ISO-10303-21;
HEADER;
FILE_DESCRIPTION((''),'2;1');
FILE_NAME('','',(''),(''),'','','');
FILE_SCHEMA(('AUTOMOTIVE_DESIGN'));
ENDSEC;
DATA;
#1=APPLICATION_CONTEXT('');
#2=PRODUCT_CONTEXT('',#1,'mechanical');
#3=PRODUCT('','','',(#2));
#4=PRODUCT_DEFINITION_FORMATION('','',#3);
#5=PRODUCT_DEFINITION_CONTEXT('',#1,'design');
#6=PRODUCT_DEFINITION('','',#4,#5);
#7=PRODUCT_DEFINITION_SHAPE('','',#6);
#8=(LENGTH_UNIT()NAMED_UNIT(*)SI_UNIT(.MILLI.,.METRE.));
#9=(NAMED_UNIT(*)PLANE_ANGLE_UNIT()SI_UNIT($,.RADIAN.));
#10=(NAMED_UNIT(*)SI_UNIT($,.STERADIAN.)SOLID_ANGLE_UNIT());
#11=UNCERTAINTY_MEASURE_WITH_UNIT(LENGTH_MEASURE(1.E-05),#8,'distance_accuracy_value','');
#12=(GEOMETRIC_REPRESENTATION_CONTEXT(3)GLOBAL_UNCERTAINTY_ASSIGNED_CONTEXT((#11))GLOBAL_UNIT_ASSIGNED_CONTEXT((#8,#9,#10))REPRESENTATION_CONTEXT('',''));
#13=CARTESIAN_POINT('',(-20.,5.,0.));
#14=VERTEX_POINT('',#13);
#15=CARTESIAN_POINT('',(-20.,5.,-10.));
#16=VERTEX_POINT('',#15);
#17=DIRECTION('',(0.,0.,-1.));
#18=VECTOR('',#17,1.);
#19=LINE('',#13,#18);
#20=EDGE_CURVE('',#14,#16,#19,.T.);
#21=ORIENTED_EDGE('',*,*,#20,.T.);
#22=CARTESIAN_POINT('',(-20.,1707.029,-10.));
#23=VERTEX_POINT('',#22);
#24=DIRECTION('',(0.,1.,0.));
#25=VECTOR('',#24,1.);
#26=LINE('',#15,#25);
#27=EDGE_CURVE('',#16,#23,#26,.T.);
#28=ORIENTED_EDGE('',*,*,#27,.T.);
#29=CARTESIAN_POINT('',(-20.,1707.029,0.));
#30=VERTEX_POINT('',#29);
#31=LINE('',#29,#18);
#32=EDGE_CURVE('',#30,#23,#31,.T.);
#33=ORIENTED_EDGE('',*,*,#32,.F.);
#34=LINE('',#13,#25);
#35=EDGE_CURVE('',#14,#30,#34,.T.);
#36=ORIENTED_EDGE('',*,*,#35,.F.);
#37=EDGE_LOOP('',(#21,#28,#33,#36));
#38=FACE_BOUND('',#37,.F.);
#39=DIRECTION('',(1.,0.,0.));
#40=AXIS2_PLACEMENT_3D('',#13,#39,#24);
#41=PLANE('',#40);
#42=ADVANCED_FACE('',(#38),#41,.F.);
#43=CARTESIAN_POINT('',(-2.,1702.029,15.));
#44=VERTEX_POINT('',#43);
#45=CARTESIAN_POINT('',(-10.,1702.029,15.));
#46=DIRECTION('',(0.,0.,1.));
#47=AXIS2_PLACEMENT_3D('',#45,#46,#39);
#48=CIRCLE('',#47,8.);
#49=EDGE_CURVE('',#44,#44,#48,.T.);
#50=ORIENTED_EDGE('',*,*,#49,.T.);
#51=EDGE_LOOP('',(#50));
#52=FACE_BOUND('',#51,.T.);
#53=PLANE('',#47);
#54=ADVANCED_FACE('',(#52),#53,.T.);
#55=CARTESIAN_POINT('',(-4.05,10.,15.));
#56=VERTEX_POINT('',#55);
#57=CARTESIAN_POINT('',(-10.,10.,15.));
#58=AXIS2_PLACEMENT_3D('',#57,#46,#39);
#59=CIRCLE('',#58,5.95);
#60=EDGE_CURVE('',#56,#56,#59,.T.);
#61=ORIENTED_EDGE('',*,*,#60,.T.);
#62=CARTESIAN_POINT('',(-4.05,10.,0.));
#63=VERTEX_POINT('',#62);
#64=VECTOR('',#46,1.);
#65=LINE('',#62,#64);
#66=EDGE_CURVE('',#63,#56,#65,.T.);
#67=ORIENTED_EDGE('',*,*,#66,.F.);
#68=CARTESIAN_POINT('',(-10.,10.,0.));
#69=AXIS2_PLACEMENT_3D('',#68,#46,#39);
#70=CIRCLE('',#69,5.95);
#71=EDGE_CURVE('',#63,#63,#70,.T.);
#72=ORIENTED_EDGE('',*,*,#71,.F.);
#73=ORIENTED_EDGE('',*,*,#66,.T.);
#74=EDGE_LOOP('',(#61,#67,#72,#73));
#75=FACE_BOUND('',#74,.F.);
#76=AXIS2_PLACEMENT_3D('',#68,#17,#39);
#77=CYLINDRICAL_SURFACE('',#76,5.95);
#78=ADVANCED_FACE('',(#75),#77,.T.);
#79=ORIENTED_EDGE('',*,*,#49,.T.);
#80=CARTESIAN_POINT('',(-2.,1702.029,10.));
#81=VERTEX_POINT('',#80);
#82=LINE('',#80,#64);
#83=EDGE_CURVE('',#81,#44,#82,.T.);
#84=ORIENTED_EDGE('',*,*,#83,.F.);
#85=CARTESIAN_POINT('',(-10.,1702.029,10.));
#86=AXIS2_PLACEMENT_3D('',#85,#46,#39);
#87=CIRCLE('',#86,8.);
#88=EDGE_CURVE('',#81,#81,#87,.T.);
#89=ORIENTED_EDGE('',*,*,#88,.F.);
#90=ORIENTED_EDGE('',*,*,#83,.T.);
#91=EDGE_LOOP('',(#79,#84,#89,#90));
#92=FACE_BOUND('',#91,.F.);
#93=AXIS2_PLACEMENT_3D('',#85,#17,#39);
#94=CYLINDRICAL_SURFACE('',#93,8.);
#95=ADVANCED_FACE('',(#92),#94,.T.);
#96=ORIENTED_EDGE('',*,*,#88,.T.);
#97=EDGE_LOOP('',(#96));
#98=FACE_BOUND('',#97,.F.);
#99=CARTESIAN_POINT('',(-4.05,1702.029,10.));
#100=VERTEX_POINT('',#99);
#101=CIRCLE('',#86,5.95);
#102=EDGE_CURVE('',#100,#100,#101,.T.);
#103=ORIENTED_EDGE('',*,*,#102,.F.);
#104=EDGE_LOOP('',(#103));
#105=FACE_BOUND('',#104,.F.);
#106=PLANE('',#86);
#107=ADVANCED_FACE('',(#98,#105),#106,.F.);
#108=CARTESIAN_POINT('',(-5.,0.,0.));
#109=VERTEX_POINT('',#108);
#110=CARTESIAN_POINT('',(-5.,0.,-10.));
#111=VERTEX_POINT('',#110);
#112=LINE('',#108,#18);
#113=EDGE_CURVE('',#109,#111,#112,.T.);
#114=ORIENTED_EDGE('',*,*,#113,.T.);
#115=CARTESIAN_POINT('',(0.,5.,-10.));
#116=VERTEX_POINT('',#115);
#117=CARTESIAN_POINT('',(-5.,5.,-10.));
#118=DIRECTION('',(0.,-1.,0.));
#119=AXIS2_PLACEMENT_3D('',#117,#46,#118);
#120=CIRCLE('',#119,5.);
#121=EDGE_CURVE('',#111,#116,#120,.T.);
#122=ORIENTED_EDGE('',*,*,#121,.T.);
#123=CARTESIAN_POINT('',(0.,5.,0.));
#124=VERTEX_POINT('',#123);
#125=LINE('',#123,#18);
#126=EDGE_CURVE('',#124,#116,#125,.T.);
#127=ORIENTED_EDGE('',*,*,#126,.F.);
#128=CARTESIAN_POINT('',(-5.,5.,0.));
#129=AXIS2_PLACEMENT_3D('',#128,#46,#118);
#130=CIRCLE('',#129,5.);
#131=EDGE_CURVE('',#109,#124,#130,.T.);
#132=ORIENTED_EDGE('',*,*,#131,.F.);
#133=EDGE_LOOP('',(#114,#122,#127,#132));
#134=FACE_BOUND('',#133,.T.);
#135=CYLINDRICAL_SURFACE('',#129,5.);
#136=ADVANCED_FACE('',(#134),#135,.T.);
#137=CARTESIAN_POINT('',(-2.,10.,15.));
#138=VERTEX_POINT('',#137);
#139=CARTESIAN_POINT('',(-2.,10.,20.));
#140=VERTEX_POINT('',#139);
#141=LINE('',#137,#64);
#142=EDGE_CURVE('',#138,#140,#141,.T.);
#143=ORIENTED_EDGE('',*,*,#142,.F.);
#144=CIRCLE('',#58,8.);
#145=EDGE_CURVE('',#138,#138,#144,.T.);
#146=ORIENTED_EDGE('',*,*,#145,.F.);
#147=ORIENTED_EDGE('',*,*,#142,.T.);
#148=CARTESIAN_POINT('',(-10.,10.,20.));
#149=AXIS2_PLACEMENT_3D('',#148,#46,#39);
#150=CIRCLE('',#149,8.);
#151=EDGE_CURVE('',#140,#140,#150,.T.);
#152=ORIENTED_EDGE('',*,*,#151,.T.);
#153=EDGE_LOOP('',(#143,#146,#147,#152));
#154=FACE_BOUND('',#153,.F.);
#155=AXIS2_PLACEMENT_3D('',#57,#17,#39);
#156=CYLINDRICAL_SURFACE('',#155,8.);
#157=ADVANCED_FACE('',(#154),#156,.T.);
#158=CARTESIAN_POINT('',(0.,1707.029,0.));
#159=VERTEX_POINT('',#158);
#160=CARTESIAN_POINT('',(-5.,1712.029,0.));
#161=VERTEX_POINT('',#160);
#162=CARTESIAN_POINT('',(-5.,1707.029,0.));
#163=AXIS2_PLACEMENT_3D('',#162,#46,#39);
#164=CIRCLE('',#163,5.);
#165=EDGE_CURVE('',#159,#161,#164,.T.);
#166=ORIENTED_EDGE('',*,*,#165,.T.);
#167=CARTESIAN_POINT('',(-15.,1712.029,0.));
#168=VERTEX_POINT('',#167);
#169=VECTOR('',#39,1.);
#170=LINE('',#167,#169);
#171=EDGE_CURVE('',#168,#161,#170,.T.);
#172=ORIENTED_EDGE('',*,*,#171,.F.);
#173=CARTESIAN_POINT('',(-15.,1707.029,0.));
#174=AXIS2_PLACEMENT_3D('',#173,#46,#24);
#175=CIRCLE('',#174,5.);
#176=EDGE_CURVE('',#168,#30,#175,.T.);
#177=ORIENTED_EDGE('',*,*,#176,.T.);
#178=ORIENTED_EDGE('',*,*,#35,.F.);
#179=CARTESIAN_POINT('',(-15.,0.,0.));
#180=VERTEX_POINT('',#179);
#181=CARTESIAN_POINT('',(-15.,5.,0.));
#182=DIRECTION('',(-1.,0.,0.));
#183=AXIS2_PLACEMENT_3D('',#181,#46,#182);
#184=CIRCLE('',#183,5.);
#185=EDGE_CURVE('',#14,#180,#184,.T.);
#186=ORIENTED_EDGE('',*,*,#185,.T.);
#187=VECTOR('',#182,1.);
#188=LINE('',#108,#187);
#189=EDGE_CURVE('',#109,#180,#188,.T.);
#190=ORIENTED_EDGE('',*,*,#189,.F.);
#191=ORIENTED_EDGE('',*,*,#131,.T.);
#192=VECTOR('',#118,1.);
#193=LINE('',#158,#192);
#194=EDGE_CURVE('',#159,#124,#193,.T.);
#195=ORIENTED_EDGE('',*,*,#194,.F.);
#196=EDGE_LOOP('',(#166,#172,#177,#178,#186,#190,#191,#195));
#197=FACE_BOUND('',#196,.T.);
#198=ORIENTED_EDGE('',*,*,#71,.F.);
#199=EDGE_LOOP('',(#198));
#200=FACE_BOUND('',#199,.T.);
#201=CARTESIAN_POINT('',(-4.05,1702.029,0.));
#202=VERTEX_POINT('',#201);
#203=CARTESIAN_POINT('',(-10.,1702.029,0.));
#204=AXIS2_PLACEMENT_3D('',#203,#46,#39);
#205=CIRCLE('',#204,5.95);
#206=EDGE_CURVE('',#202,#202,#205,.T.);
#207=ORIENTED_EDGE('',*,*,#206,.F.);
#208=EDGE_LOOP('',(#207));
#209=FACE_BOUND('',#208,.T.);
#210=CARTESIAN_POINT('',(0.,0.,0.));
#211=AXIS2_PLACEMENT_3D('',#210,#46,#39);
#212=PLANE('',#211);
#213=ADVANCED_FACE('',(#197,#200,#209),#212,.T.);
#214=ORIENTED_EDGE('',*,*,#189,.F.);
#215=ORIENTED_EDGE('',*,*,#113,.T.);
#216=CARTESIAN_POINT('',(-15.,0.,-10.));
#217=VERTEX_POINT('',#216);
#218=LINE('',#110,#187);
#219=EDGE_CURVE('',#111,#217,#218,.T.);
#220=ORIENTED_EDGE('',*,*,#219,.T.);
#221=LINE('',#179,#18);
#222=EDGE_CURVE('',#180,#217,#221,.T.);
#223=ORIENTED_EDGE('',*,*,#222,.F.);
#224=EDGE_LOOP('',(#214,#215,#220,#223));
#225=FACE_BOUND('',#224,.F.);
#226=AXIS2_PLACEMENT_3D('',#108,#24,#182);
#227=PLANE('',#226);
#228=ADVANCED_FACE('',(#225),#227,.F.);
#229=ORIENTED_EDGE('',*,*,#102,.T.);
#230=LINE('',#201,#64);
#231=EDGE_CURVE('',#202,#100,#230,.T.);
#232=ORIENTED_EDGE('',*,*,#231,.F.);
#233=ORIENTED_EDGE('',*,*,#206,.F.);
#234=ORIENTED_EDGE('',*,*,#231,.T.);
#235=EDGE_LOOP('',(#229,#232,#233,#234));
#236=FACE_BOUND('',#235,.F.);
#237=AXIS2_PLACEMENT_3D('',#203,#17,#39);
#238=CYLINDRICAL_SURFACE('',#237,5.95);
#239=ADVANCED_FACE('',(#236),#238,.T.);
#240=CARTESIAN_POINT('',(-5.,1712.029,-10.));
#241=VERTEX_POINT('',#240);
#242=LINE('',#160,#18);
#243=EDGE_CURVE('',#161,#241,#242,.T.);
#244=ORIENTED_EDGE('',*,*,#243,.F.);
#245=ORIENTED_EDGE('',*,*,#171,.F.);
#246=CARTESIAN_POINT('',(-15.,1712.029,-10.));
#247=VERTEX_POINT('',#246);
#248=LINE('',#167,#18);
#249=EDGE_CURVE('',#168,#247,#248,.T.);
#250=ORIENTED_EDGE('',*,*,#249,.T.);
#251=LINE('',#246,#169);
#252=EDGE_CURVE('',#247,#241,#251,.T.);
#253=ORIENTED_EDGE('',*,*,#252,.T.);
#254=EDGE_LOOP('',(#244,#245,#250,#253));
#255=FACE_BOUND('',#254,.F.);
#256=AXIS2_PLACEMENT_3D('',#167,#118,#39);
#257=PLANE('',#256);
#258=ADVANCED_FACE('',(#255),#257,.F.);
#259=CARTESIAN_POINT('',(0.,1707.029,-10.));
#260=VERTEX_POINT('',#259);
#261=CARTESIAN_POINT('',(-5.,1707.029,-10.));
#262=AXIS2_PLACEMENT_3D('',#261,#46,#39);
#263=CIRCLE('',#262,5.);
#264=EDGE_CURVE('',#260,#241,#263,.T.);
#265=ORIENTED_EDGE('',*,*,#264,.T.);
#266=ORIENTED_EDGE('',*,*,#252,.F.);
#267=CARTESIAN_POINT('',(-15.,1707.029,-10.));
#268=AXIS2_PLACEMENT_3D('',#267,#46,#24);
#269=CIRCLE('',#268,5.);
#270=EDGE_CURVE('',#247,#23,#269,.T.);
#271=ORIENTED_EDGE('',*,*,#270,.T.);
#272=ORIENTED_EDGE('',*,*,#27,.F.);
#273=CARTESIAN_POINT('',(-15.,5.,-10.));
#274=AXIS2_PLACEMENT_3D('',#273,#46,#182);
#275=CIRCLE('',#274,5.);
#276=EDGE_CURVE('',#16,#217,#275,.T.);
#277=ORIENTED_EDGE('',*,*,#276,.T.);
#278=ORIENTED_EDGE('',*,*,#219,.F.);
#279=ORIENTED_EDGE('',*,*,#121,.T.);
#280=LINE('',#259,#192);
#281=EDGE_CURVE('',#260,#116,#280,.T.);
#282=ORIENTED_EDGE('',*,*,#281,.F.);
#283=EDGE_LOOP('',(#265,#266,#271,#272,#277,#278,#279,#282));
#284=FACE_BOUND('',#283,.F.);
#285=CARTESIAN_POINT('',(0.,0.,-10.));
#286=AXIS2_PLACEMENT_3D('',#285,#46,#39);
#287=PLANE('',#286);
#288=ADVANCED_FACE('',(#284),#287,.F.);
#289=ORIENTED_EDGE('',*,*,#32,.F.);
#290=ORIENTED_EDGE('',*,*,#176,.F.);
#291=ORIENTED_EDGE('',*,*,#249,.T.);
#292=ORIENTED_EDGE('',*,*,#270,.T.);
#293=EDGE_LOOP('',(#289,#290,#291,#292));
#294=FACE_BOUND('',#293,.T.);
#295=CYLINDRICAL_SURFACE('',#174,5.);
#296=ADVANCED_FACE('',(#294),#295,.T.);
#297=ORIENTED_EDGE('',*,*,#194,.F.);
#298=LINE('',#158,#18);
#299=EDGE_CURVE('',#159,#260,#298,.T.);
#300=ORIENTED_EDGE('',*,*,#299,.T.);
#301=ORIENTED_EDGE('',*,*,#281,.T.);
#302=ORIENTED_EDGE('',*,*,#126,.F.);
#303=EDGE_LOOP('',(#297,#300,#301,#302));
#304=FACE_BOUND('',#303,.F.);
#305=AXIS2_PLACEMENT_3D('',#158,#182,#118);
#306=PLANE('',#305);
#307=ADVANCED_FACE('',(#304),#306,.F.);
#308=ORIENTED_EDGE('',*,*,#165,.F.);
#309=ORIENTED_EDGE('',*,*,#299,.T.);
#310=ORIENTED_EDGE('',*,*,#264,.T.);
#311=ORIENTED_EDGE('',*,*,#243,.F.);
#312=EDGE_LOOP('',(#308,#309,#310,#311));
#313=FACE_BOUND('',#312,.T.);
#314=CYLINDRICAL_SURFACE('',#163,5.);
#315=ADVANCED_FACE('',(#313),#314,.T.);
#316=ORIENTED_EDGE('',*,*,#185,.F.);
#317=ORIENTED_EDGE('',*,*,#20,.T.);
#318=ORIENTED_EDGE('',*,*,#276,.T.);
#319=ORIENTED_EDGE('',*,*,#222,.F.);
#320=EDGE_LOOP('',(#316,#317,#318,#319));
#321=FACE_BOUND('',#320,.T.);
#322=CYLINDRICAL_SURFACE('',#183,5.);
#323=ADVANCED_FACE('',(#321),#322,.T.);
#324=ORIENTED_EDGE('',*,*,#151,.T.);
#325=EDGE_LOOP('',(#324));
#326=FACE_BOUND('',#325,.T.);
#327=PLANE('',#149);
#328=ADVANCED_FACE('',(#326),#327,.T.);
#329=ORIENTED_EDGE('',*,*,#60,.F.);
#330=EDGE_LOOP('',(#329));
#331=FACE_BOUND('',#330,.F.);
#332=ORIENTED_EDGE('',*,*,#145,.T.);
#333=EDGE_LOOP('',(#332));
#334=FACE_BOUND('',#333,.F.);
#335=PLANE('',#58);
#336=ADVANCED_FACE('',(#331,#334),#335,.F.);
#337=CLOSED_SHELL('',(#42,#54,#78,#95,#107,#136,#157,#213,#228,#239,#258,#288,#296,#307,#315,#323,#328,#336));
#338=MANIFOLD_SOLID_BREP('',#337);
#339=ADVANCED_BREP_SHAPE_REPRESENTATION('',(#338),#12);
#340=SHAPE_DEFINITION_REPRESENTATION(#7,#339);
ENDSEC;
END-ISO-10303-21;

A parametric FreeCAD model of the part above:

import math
import FreeCAD as App
import Part
import Sketcher

V = App.Vector

doc = App.newDocument("Part")
body = doc.addObject("PartDesign::Body", "Body")

# Sketch on XY plane
sketch1 = doc.addObject("Sketcher::SketchObject", "Sketch")
body.addObject(sketch1)
sketch1.AttachmentSupport = (doc.XY_Plane, [""])
sketch1.MapMode = "FlatFace"
sketch1.addGeometry(Part.LineSegment(V(-5, 1712, 0), V(-15, 1712, 0)), False)
sketch1.addGeometry(Part.ArcOfCircle(Part.Circle(V(-15, 1707, 0), V(0, 0, 1), 5), math.radians(90), math.radians(180)), False)
sketch1.addGeometry(Part.LineSegment(V(-20, 1707, 0), V(-20, 5, 0)), False)
sketch1.addGeometry(Part.ArcOfCircle(Part.Circle(V(-15, 5, 0), V(0, 0, 1), 5), math.radians(180), math.radians(270)), False)
sketch1.addGeometry(Part.LineSegment(V(-15, 0, 0), V(-5, 0, 0)), False)
sketch1.addGeometry(Part.ArcOfCircle(Part.Circle(V(-5, 5, 0), V(0, 0, 1), 5), math.radians(-90), math.radians(0)), False)
sketch1.addGeometry(Part.LineSegment(V(0, 5, 0), V(0, 1707, 0)), False)
sketch1.addGeometry(Part.ArcOfCircle(Part.Circle(V(-5, 1707, 0), V(0, 0, 1), 5), math.radians(0), math.radians(90)), False)
sketch1.addConstraint(Sketcher.Constraint("Tangent", 0, 2, 1, 1))
sketch1.addConstraint(Sketcher.Constraint("Tangent", 1, 2, 2, 1))
sketch1.addConstraint(Sketcher.Constraint("Tangent", 2, 2, 3, 1))
sketch1.addConstraint(Sketcher.Constraint("Tangent", 3, 2, 4, 1))
sketch1.addConstraint(Sketcher.Constraint("Tangent", 4, 2, 5, 1))
sketch1.addConstraint(Sketcher.Constraint("Tangent", 5, 2, 6, 1))
sketch1.addConstraint(Sketcher.Constraint("Tangent", 6, 2, 7, 1))
sketch1.addConstraint(Sketcher.Constraint("Tangent", 7, 2, 0, 1))
sketch1.addConstraint(Sketcher.Constraint("Horizontal", 0))
sketch1.addConstraint(Sketcher.Constraint("Vertical", 2))
sketch1.addConstraint(Sketcher.Constraint("Horizontal", 4))
sketch1.addConstraint(Sketcher.Constraint("Vertical", 6))
sketch1.addConstraint(Sketcher.Constraint("Equal", 1, 3))
sketch1.addConstraint(Sketcher.Constraint("Equal", 3, 5))
sketch1.addConstraint(Sketcher.Constraint("Equal", 5, 7))
sketch1.addConstraint(Sketcher.Constraint("PointOnObject", 3, 2, -1))
sketch1.addConstraint(Sketcher.Constraint("PointOnObject", 5, 2, -2))
sketch1.addConstraint(Sketcher.Constraint("Radius", 1, 5.0))
sketch1.addConstraint(Sketcher.Constraint("DistanceX", 0, 2, 0, 1, 10.0))
sketch1.addConstraint(Sketcher.Constraint("DistanceY", 2, 2, 2, 1, 1702.029))
pad1 = doc.addObject("PartDesign::Pad", "Pad")
body.addObject(pad1)
pad1.Profile = sketch1
pad1.Length = 10
pad1.Reversed = True

# Sketch on XY plane
sketch2 = doc.addObject("Sketcher::SketchObject", "Sketch001")
body.addObject(sketch2)
sketch2.AttachmentSupport = (doc.XY_Plane, [""])
sketch2.MapMode = "FlatFace"
sketch2.addGeometry(Part.Circle(V(-10, 1702, 0), V(0, 0, 1), 6), False)
sketch2.addConstraint(Sketcher.Constraint("Diameter", 0, 11.9))
sketch2.addConstraint(Sketcher.Constraint("DistanceX", 0, 3, -1, 1, 10.0))
sketch2.addConstraint(Sketcher.Constraint("DistanceY", -1, 1, 0, 3, 1702.029))
pad2 = doc.addObject("PartDesign::Pad", "Pad001")
body.addObject(pad2)
pad2.Profile = sketch2
pad2.Length = 10

# Sketch on XY plane
sketch3 = doc.addObject("Sketcher::SketchObject", "Sketch002")
body.addObject(sketch3)
sketch3.AttachmentSupport = (doc.XY_Plane, [""])
sketch3.MapMode = "FlatFace"
sketch3.AttachmentOffset = App.Placement(V(0, 0, 10), App.Rotation())
sketch3.addGeometry(Part.Circle(V(-10, 1702, 0), V(0, 0, 1), 8), False)
sketch3.addConstraint(Sketcher.Constraint("Diameter", 0, 16.0))
sketch3.addConstraint(Sketcher.Constraint("DistanceX", 0, 3, -1, 1, 10.0))
sketch3.addConstraint(Sketcher.Constraint("DistanceY", -1, 1, 0, 3, 1702.029))
pad3 = doc.addObject("PartDesign::Pad", "Pad002")
body.addObject(pad3)
pad3.Profile = sketch3
pad3.Length = 5

# Sketch on XY plane
sketch4 = doc.addObject("Sketcher::SketchObject", "Sketch003")
body.addObject(sketch4)
sketch4.AttachmentSupport = (doc.XY_Plane, [""])
sketch4.MapMode = "FlatFace"
sketch4.addGeometry(Part.Circle(V(-10, 10, 0), V(0, 0, 1), 6), False)
sketch4.addConstraint(Sketcher.Constraint("Diameter", 0, 11.9))
sketch4.addConstraint(Sketcher.Constraint("DistanceX", 0, 3, -1, 1, 10.0))
sketch4.addConstraint(Sketcher.Constraint("DistanceY", -1, 1, 0, 3, 10.0))
pad4 = doc.addObject("PartDesign::Pad", "Pad003")
body.addObject(pad4)
pad4.Profile = sketch4
pad4.Length = 15

# Sketch on XY plane
sketch5 = doc.addObject("Sketcher::SketchObject", "Sketch004")
body.addObject(sketch5)
sketch5.AttachmentSupport = (doc.XY_Plane, [""])
sketch5.MapMode = "FlatFace"
sketch5.AttachmentOffset = App.Placement(V(0, 0, 15), App.Rotation())
sketch5.addGeometry(Part.Circle(V(-10, 10, 0), V(0, 0, 1), 8), False)
sketch5.addConstraint(Sketcher.Constraint("Diameter", 0, 16.0))
sketch5.addConstraint(Sketcher.Constraint("DistanceX", 0, 3, -1, 1, 10.0))
sketch5.addConstraint(Sketcher.Constraint("DistanceY", -1, 1, 0, 3, 10.0))
pad5 = doc.addObject("PartDesign::Pad", "Pad004")
body.addObject(pad5)
pad5.Profile = sketch5
pad5.Length = 5

doc.recompute()
